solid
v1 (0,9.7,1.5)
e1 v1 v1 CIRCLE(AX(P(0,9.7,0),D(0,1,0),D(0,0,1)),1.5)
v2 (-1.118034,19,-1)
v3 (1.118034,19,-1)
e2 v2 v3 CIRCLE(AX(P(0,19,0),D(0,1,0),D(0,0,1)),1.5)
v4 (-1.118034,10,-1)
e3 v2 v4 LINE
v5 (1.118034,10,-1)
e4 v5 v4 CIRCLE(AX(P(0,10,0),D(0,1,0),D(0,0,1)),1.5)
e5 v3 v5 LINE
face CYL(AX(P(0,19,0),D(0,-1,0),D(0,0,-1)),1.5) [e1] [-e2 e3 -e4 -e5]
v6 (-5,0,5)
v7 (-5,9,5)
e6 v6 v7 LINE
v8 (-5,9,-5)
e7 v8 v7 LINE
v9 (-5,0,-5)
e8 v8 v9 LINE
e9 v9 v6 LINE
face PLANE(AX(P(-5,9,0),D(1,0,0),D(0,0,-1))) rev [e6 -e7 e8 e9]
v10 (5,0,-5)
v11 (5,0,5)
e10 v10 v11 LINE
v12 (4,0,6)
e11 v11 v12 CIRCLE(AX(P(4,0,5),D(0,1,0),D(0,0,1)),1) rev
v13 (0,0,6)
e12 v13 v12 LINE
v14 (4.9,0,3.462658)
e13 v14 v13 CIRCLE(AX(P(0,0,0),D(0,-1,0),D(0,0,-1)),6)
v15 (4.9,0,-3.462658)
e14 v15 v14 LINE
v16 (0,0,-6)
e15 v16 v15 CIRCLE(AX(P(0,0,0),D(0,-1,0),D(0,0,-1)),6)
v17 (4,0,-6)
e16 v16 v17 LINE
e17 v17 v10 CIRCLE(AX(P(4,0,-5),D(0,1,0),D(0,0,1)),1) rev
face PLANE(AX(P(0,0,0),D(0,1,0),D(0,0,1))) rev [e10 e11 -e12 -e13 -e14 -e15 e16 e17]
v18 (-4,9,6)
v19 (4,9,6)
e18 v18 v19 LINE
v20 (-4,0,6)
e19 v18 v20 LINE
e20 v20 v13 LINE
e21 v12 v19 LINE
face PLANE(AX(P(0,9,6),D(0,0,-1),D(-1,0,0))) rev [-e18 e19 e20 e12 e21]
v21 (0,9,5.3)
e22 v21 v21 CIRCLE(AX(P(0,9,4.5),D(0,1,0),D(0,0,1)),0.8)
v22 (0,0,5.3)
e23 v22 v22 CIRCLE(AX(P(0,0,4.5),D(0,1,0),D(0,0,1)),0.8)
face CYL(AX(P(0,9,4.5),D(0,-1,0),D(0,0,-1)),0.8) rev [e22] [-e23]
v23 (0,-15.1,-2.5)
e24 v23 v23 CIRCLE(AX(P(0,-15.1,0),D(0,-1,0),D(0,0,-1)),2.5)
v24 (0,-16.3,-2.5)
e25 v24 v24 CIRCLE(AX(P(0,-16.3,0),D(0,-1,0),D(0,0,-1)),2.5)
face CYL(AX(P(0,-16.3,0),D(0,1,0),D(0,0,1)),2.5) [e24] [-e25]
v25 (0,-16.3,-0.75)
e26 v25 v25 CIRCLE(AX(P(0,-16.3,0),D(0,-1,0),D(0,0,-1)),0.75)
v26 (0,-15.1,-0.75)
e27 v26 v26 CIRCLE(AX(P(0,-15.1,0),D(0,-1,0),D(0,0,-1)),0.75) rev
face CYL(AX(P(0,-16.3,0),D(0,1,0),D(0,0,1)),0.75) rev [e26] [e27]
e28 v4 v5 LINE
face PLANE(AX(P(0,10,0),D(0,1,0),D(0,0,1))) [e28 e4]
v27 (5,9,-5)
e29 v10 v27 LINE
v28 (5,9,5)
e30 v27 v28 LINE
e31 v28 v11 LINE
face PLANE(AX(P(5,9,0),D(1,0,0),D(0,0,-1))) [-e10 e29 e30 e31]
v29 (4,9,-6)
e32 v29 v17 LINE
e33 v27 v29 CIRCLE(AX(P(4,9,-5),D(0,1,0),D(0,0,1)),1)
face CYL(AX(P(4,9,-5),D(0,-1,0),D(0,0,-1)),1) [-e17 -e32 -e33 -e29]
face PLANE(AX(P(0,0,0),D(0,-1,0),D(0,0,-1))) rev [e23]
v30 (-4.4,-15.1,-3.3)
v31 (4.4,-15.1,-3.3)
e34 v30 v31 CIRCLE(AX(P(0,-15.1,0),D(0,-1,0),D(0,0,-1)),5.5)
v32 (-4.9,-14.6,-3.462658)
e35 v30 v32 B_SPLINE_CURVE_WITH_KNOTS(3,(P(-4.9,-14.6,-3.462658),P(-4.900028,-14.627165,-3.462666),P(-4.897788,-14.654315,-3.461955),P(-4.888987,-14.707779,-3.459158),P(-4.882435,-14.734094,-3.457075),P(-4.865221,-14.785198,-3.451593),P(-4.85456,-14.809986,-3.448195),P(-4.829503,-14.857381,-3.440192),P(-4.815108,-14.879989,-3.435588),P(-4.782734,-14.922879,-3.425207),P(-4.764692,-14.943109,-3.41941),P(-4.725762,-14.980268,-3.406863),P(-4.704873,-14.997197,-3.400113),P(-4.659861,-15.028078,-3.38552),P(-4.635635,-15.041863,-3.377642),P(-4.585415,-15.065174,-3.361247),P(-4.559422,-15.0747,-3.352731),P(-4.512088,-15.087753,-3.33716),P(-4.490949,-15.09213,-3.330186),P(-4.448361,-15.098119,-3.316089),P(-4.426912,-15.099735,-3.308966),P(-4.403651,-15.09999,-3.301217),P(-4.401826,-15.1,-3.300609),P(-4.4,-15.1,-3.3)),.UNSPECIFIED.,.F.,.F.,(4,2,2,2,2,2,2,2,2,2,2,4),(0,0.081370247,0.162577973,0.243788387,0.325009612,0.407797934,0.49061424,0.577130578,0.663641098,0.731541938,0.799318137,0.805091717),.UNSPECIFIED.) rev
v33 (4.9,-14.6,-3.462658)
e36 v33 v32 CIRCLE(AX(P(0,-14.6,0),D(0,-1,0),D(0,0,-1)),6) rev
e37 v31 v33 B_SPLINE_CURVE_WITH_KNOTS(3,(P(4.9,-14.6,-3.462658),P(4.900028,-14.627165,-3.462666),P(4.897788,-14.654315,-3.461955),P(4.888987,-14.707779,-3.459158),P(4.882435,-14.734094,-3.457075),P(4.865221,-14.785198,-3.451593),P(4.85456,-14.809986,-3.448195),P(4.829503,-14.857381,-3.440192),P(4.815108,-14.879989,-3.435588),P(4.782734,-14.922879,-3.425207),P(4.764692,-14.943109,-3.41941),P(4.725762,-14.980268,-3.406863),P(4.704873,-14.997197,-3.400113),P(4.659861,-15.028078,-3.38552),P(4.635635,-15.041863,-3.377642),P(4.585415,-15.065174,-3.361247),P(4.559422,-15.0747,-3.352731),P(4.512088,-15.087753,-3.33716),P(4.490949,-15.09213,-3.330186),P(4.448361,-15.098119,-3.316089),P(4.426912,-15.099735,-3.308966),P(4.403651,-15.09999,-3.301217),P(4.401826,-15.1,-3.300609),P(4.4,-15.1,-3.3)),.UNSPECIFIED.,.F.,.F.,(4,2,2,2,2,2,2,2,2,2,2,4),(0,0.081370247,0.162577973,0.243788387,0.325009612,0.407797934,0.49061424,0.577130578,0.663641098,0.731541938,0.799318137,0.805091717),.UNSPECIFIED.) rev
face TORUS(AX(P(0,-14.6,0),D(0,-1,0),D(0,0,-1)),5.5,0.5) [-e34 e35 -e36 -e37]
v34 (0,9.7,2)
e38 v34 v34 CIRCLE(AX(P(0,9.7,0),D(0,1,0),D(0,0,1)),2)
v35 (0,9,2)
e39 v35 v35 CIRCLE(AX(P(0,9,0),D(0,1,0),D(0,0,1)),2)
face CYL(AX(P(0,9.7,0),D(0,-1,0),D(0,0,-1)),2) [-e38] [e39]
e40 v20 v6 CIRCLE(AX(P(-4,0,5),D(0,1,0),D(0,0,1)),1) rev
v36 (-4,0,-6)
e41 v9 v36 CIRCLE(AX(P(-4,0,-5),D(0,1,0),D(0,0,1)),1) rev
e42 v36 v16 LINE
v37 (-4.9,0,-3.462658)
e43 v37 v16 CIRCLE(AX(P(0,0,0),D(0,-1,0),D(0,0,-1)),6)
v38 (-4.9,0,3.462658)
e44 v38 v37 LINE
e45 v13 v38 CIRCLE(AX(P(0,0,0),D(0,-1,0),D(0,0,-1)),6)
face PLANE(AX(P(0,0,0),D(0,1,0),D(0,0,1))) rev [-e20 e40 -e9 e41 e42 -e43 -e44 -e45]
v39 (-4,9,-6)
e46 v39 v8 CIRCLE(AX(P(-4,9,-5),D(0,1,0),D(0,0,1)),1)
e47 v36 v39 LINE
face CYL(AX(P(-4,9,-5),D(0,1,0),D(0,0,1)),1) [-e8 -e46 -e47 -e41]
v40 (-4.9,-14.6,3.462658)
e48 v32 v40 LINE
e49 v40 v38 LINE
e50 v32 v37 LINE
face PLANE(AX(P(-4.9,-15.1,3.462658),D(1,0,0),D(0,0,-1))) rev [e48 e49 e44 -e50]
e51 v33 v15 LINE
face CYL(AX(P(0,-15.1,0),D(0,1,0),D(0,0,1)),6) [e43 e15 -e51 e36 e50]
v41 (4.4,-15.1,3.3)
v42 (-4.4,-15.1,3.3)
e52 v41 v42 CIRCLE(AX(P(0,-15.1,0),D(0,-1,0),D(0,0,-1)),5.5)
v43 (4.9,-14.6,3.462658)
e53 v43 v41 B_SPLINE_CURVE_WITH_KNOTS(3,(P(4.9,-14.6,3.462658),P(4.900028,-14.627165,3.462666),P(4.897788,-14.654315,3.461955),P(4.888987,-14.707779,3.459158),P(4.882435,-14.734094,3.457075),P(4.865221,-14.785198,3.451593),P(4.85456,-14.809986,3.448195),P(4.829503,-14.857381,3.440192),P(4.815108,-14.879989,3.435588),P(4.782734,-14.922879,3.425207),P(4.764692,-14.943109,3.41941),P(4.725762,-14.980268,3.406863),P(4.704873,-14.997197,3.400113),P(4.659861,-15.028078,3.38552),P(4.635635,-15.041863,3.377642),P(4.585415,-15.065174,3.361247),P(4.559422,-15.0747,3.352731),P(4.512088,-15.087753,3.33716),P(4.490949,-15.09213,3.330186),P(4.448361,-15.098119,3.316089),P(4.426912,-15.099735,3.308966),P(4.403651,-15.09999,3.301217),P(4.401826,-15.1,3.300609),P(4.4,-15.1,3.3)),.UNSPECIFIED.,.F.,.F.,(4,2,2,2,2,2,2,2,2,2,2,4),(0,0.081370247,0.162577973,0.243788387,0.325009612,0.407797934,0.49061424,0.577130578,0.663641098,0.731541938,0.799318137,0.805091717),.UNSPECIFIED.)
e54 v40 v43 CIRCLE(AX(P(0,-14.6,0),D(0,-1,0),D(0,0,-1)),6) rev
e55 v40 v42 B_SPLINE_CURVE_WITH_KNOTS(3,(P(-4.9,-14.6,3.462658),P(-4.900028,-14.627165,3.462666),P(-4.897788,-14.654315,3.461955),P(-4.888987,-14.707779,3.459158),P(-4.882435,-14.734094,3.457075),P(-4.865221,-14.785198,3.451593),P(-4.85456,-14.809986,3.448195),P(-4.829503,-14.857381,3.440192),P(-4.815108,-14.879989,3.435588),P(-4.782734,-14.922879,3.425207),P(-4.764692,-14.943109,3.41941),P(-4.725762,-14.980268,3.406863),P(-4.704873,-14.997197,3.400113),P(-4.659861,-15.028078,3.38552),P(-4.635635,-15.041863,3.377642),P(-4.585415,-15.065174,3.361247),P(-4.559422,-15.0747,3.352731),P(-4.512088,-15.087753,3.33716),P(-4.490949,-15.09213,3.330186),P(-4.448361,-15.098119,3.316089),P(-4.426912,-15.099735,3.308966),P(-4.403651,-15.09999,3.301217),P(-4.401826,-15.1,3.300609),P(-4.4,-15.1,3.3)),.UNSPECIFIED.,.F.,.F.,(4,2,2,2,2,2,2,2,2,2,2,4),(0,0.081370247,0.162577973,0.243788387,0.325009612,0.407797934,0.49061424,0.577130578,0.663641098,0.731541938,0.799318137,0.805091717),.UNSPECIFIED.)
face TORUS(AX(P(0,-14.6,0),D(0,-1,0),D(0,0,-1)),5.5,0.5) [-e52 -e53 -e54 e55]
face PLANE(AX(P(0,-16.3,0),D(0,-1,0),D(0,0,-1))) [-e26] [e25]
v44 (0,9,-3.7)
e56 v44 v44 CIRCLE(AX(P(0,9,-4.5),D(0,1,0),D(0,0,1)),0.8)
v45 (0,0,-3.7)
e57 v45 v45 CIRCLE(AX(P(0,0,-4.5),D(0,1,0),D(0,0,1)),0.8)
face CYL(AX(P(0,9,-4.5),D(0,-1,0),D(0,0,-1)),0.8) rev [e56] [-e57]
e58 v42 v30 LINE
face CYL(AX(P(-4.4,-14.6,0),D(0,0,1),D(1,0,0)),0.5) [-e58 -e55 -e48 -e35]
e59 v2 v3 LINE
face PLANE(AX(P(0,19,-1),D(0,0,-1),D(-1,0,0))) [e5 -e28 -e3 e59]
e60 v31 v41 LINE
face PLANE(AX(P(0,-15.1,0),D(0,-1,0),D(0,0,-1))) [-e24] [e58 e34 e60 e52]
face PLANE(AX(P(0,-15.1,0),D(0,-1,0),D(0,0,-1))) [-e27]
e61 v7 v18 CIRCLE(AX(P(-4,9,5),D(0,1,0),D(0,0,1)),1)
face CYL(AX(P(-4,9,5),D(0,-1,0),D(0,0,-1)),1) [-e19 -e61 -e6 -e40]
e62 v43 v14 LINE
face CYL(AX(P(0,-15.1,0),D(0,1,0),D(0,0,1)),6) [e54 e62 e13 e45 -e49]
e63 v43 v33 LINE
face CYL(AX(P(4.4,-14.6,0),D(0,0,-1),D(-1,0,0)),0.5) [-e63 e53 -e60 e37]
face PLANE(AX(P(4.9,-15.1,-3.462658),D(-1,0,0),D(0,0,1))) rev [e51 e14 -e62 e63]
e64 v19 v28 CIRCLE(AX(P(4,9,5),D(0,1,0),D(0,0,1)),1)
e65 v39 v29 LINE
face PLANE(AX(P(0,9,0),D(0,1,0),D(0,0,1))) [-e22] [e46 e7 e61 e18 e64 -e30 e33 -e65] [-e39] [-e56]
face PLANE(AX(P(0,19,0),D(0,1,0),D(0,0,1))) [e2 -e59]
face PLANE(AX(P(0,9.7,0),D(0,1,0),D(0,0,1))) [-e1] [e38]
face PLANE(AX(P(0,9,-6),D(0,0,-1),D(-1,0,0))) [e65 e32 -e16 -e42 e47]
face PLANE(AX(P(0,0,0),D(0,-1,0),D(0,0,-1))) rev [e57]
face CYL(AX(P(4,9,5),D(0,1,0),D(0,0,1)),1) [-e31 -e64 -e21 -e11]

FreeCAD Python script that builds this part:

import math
import FreeCAD as App
import Part
import Sketcher
Q = App.Units.Quantity


def edges_at(feature, points):
    """Names of the edges that pass closest to the given points."""
    edges = feature.Shape.Edges
    near = lambda p: min(range(len(edges)), key=lambda i: edges[i].distToShape(Part.Vertex(*p))[0])
    return sorted({f"Edge{near(p) + 1}" for p in points})

doc = App.newDocument("Part")
body = doc.addObject("PartDesign::Body", "Body")

# Sketch on XZ plane
sketch1 = doc.addObject("Sketcher::SketchObject", "Sketch")
body.addObject(sketch1)
sketch1.AttachmentSupport = (doc.XZ_Plane, [""])
sketch1.MapMode = "FlatFace"
sketch1.addGeometry([
    Part.LineSegment(App.Vector(-5, -6, 0), App.Vector(-5, 6, 0)),  # 0
    Part.LineSegment(App.Vector(-5, 6, 0), App.Vector(5, 6, 0)),  # 1
    Part.LineSegment(App.Vector(5, 6, 0), App.Vector(5, -6, 0)),  # 2
    Part.LineSegment(App.Vector(5, -6, 0), App.Vector(-5, -6, 0)),  # 3
    Part.Circle(App.Vector(0, 4.5, 0), App.Vector(0, 0, 1), 0.8),  # 4
    Part.Circle(App.Vector(0, 0, 0), App.Vector(0, 0, 1), 2),  # 5
    Part.Circle(App.Vector(0, -4.5, 0), App.Vector(0, 0, 1), 0.8),  # 6
], False)
sketch1.addConstraint([
    Sketcher.Constraint("Coincident", 0, 2, 1, 1),
    Sketcher.Constraint("Coincident", 1, 2, 2, 1),
    Sketcher.Constraint("Coincident", 2, 2, 3, 1),
    Sketcher.Constraint("Coincident", 3, 2, 0, 1),
    Sketcher.Constraint("Vertical", 0),
    Sketcher.Constraint("Horizontal", 1),
    Sketcher.Constraint("Vertical", 2),
    Sketcher.Constraint("Horizontal", 3),
    Sketcher.Constraint("Coincident", 5, 3, -1, 1),
    Sketcher.Constraint("Equal", 4, 6),
    Sketcher.Constraint("Symmetric", 4, 3, 6, 3, -1, 1),
    Sketcher.Constraint("Symmetric", 0, 2, 2, 2, -1, 1),
    Sketcher.Constraint("PointOnObject", 4, 3, -2),
    Sketcher.Constraint("Diameter", 5, Q("4 mm")),
    Sketcher.Constraint("Diameter", 4, Q("1.6 mm")),
    Sketcher.Constraint("DistanceX", 1, 1, 1, 2, Q("10 mm")),
    Sketcher.Constraint("DistanceY", 0, 1, 0, 2, Q("12 mm")),
    Sketcher.Constraint("DistanceY", 6, 3, 4, 3, Q("9 mm")),
])
pad1 = doc.addObject("PartDesign::Pad", "Pad")
body.addObject(pad1)
pad1.Profile = sketch1
pad1.Length = 9
pad1.Reversed = True

# Sketch on XZ plane
sketch2 = doc.addObject("Sketcher::SketchObject", "Sketch001")
body.addObject(sketch2)
sketch2.AttachmentSupport = (doc.XZ_Plane, [""])
sketch2.MapMode = "FlatFace"
sketch2.addGeometry([
    Part.Circle(App.Vector(0, 0, 0), App.Vector(0, 0, 1), 2),
    Part.Circle(App.Vector(0, 0, 0), App.Vector(0, 0, 1), 1.5),
], False)
sketch2.addConstraint([
    Sketcher.Constraint("Coincident", 0, 3, -1, 1),
    Sketcher.Constraint("Coincident", 1, 3, -1, 1),
    Sketcher.Constraint("Diameter", 0, Q("4 mm")),
    Sketcher.Constraint("Diameter", 1, Q("3 mm")),
])
pad2 = doc.addObject("PartDesign::Pad", "Pad001")
body.addObject(pad2)
pad2.Profile = sketch2
pad2.Length = 9.7
pad2.Reversed = True

# Sketch on XZ plane
sketch3 = doc.addObject("Sketcher::SketchObject", "Sketch002")
body.addObject(sketch3)
sketch3.AttachmentSupport = (doc.XZ_Plane, [""])
sketch3.MapMode = "FlatFace"
sketch3.addGeometry([
    Part.LineSegment(App.Vector(1.1, -1, 0), App.Vector(-1.1, -1, 0)),
    Part.ArcOfCircle(Part.Circle(App.Vector(0, 0, 0), App.Vector(0, 0, 1), 1.5), math.radians(0), math.radians(222)),
    Part.ArcOfCircle(Part.Circle(App.Vector(0, 0, 0), App.Vector(0, 0, 1), 1.5), math.radians(-42), math.radians(0)),
], False)
sketch3.addConstraint([
    Sketcher.Constraint("Coincident", 0, 2, 1, 2),
    Sketcher.Constraint("Tangent", 1, 1, 2, 2),
    Sketcher.Constraint("Coincident", 2, 1, 0, 1),
    Sketcher.Constraint("Horizontal", 0),
    Sketcher.Constraint("Coincident", 1, 3, -1, 1),
    Sketcher.Constraint("Equal", 1, 2),
    Sketcher.Constraint("PointOnObject", 1, 1, -1),
    Sketcher.Constraint("Radius", 1, Q("1.5 mm")),
    Sketcher.Constraint("DistanceY", 0, 2, -1, 1, Q("1 mm")),
])
pad3 = doc.addObject("PartDesign::Pad", "Pad002")
body.addObject(pad3)
pad3.Profile = sketch3
pad3.Length = 19
pad3.Reversed = True

# Sketch on XZ plane
sketch4 = doc.addObject("Sketcher::SketchObject", "Sketch003")
body.addObject(sketch4)
sketch4.AttachmentSupport = (doc.XZ_Plane, [""])
sketch4.MapMode = "FlatFace"
sketch4.addGeometry(Part.Circle(App.Vector(0, 0, 0), App.Vector(0, 0, 1), 1.5), False)
sketch4.addConstraint([
    Sketcher.Constraint("Coincident", 0, 3, -1, 1),
    Sketcher.Constraint("Diameter", 0, Q("3 mm")),
])
pad4 = doc.addObject("PartDesign::Pad", "Pad003")
body.addObject(pad4)
pad4.Profile = sketch4
pad4.Length = 10
pad4.Reversed = True

# Sketch on XZ plane
sketch5 = doc.addObject("Sketcher::SketchObject", "Sketch004")
body.addObject(sketch5)
sketch5.AttachmentSupport = (doc.XZ_Plane, [""])
sketch5.MapMode = "FlatFace"
sketch5.addGeometry([
    Part.LineSegment(App.Vector(5, -3, 0), App.Vector(5, 3, 0)),
    Part.ArcOfCircle(Part.Circle(App.Vector(0, 0, 0), App.Vector(0, 0, 1), 6), math.radians(35), math.radians(145)),
    Part.LineSegment(App.Vector(-5, 3, 0), App.Vector(-5, -3, 0)),
    Part.ArcOfCircle(Part.Circle(App.Vector(0, 0, 0), App.Vector(0, 0, 1), 6), math.radians(-145), math.radians(-35)),
], False)
sketch5.addConstraint([
    Sketcher.Constraint("Coincident", 0, 2, 1, 1),
    Sketcher.Constraint("Coincident", 1, 2, 2, 1),
    Sketcher.Constraint("Coincident", 2, 2, 3, 1),
    Sketcher.Constraint("Coincident", 3, 2, 0, 1),
    Sketcher.Constraint("Vertical", 0),
    Sketcher.Constraint("Vertical", 2),
    Sketcher.Constraint("Coincident", 1, 3, -1, 1),
    Sketcher.Constraint("Coincident", 3, 3, -1, 1),
    Sketcher.Constraint("Equal", 1, 3),
    Sketcher.Constraint("Horizontal", 0, 2, 1, 2),
    Sketcher.Constraint("Radius", 1, Q("6 mm")),
    Sketcher.Constraint("DistanceX", -1, 1, 0, 2, Q("4.9 mm")),
])
pad5 = doc.addObject("PartDesign::Pad", "Pad004")
body.addObject(pad5)
pad5.Profile = sketch5
pad5.Length = 15.1

# Sketch on XZ plane
sketch6 = doc.addObject("Sketcher::SketchObject", "Sketch005")
body.addObject(sketch6)
sketch6.AttachmentSupport = (doc.XZ_Plane, [""])
sketch6.MapMode = "FlatFace"
sketch6.AttachmentOffset = App.Placement(App.Vector(0, 0, 15.1), App.Rotation())
sketch6.addGeometry([
    Part.Circle(App.Vector(0, 0, 0), App.Vector(0, 0, 1), 2.5),
    Part.Circle(App.Vector(0, 0, 0), App.Vector(0, 0, 1), 0.8),
], False)
sketch6.addConstraint([
    Sketcher.Constraint("Coincident", 0, 3, -1, 1),
    Sketcher.Constraint("Coincident", 1, 3, -1, 1),
    Sketcher.Constraint("Diameter", 0, Q("5 mm")),
    Sketcher.Constraint("Diameter", 1, Q("1.5 mm")),
])
pad6 = doc.addObject("PartDesign::Pad", "Pad005")
body.addObject(pad6)
pad6.Profile = sketch6
pad6.Length = 1.2
doc.recompute()

fillet = doc.addObject("PartDesign::Fillet", "Fillet")
body.addObject(fillet)
fillet.Base = (pad6, edges_at(pad6, [
    (5, 4.5, 6),
    (-5, 4.5, 6),
    (-5, 4.5, -6),
    (5, 4.5, -6),
]))
fillet.Radius = 1
doc.recompute()

fillet2 = doc.addObject("PartDesign::Fillet", "Fillet001")
body.addObject(fillet2)
fillet2.Base = (fillet, edges_at(fillet, [
    (0, -15.1, 6),
    (-4.9, -15.1, 0),
    (0, -15.1, -6),
    (4.9, -15.1, 0),
]))
fillet2.Radius = 0.5

doc.recompute()
